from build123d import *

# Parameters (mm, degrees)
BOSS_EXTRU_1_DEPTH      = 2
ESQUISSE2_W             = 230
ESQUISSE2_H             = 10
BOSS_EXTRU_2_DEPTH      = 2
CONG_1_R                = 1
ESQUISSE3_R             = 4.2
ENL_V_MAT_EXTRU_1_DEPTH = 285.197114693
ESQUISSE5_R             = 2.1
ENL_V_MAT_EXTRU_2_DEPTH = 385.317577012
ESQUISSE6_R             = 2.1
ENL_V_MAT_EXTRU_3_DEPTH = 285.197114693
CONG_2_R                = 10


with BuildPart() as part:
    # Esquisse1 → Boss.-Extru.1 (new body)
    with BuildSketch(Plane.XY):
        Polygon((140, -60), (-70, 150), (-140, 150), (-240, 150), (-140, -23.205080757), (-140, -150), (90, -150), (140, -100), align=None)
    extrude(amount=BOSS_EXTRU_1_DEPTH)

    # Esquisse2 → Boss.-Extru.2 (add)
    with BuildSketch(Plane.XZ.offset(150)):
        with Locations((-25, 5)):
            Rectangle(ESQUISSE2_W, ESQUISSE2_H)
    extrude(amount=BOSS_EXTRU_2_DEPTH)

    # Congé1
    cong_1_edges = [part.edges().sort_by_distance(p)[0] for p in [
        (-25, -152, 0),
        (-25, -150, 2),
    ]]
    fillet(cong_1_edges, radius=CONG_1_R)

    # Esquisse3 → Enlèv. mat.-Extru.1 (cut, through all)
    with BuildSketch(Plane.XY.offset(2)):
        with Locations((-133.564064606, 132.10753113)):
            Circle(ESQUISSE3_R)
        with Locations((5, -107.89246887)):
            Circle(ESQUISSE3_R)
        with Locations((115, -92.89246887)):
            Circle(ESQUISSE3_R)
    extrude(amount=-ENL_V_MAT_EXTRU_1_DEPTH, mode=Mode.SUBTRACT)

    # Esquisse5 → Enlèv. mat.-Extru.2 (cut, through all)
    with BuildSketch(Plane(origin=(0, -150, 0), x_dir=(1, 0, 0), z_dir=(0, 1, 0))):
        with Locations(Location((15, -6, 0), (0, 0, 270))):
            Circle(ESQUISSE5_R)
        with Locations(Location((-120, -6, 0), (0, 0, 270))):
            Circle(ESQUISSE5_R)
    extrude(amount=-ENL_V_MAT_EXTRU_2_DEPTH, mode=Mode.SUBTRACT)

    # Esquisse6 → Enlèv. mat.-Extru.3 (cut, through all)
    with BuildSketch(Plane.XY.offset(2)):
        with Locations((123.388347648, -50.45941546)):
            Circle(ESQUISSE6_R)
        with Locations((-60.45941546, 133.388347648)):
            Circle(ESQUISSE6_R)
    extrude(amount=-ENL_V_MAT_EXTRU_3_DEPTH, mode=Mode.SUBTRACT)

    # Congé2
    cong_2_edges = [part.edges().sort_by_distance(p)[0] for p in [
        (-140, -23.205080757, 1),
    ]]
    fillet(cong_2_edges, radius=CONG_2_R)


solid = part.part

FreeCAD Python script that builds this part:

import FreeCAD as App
import Part
import Sketcher
Q = App.Units.Quantity


def edges_at(feature, points):
    """Names of the edges that pass closest to the given points."""
    edges = feature.Shape.Edges
    near = lambda p: min(range(len(edges)), key=lambda i: edges[i].distToShape(Part.Vertex(*p))[0])
    return sorted({f"Edge{near(p) + 1}" for p in points})

doc = App.newDocument("Part")
body = doc.addObject("PartDesign::Body", "Body")

sketch1 = body.newObject("Sketcher::SketchObject", "Sketch")
sketch1.AttachmentSupport = (doc.getObject("XY_Plane"), [""])
sketch1.MapMode = "FlatFace"
sketch1.addGeometry(Part.LineSegment(App.Vector(140, -60, 0), App.Vector(-70, 150, 0)), False)
sketch1.addGeometry(Part.LineSegment(App.Vector(-70, 150, 0), App.Vector(-240, 150, 0)), False)
sketch1.addGeometry(Part.LineSegment(App.Vector(-240, 150, 0), App.Vector(-140, -23, 0)), False)
sketch1.addGeometry(Part.LineSegment(App.Vector(-140, -23, 0), App.Vector(-140, -150, 0)), False)
sketch1.addGeometry(Part.LineSegment(App.Vector(-140, -150, 0), App.Vector(90, -150, 0)), False)
sketch1.addGeometry(Part.LineSegment(App.Vector(90, -150, 0), App.Vector(140, -100, 0)), False)
sketch1.addGeometry(Part.LineSegment(App.Vector(140, -100, 0), App.Vector(140, -60, 0)), False)
sketch1.addConstraint(Sketcher.Constraint("Coincident", 0, 2, 1, 1))
sketch1.addConstraint(Sketcher.Constraint("Coincident", 1, 2, 2, 1))
sketch1.addConstraint(Sketcher.Constraint("Coincident", 2, 2, 3, 1))
sketch1.addConstraint(Sketcher.Constraint("Coincident", 3, 2, 4, 1))
sketch1.addConstraint(Sketcher.Constraint("Coincident", 4, 2, 5, 1))
sketch1.addConstraint(Sketcher.Constraint("Coincident", 5, 2, 6, 1))
sketch1.addConstraint(Sketcher.Constraint("Coincident", 6, 2, 0, 1))
sketch1.addConstraint(Sketcher.Constraint("Horizontal", 1))
sketch1.addConstraint(Sketcher.Constraint("Vertical", 3))
sketch1.addConstraint(Sketcher.Constraint("Horizontal", 4))
sketch1.addConstraint(Sketcher.Constraint("Vertical", 6))
sketch1.addConstraint(Sketcher.Constraint("Perpendicular", 0, 5))
sketch1.addConstraint(Sketcher.Constraint("DistanceX", 1, 2, 1, 1, 170.0))
sketch1.addConstraint(Sketcher.Constraint("DistanceX", 4, 1, 4, 2, 230.0))
sketch1.addConstraint(Sketcher.Constraint("DistanceY", 6, 1, 6, 2, 40.0))
sketch1.addConstraint(Sketcher.Constraint("Angle", 0, Q("135 deg")))
sketch1.addConstraint(Sketcher.Constraint("Angle", 2, Q("-60 deg")))
sketch1.addConstraint(Sketcher.Constraint("Distance", 2, 200.0))
sketch1.addConstraint(Sketcher.Constraint("DistanceX", 0, 2, -1, 1, 70.0))
sketch1.addConstraint(Sketcher.Constraint("DistanceY", -1, 1, 0, 2, 150.0))
sketch1.addConstraint(Sketcher.Constraint("DistanceY", 3, 2, -1, 1, 150.0))
pad1 = body.newObject("PartDesign::Pad", "Pad")
pad1.Profile = sketch1
pad1.Length = 2

sketch2 = body.newObject("Sketcher::SketchObject", "Sketch001")
sketch2.AttachmentSupport = (doc.getObject("XZ_Plane"), [""])
sketch2.MapMode = "FlatFace"
sketch2.AttachmentOffset = App.Placement(App.Vector(0, 0, 150), App.Rotation())
sketch2.addGeometry(Part.LineSegment(App.Vector(-140, 10, 0), App.Vector(-140, 0, 0)), False)
sketch2.addGeometry(Part.LineSegment(App.Vector(-140, 0, 0), App.Vector(90, 0, 0)), False)
sketch2.addGeometry(Part.LineSegment(App.Vector(90, 0, 0), App.Vector(90, 10, 0)), False)
sketch2.addGeometry(Part.LineSegment(App.Vector(90, 10, 0), App.Vector(-140, 10, 0)), False)
sketch2.addConstraint(Sketcher.Constraint("Coincident", 0, 2, 1, 1))
sketch2.addConstraint(Sketcher.Constraint("Coincident", 1, 2, 2, 1))
sketch2.addConstraint(Sketcher.Constraint("Coincident", 2, 2, 3, 1))
sketch2.addConstraint(Sketcher.Constraint("Coincident", 3, 2, 0, 1))
sketch2.addConstraint(Sketcher.Constraint("Vertical", 0))
sketch2.addConstraint(Sketcher.Constraint("Horizontal", 1))
sketch2.addConstraint(Sketcher.Constraint("Vertical", 2))
sketch2.addConstraint(Sketcher.Constraint("Horizontal", 3))
sketch2.addConstraint(Sketcher.Constraint("PointOnObject", 0, 2, -1))
sketch2.addConstraint(Sketcher.Constraint("DistanceX", 1, 1, 1, 2, 230.0))
sketch2.addConstraint(Sketcher.Constraint("DistanceY", 0, 2, 0, 1, 10.0))
sketch2.addConstraint(Sketcher.Constraint("DistanceX", 0, 2, -1, 1, 140.0))
pad2 = body.newObject("PartDesign::Pad", "Pad001")
pad2.Profile = sketch2
pad2.Length = 2
doc.recompute()

fillet = body.newObject("PartDesign::Fillet", "Fillet")
fillet.Base = (pad2, edges_at(pad2, [(-25, -152, 0), (-25, -150, 2)]))
fillet.Radius = 1

sketch3 = body.newObject("Sketcher::SketchObject", "Sketch002")
sketch3.AttachmentSupport = (doc.getObject("XY_Plane"), [""])
sketch3.MapMode = "FlatFace"
sketch3.AttachmentOffset = App.Placement(App.Vector(0, 0, 2), App.Rotation())
sketch3.addGeometry(Part.Circle(App.Vector(-133.6, 132.1, 0), App.Vector(0, 0, 1), 4.2), False)
sketch3.addGeometry(Part.Circle(App.Vector(5, -107.9, 0), App.Vector(0, 0, 1), 4.2), False)
sketch3.addGeometry(Part.Circle(App.Vector(115, -92.9, 0), App.Vector(0, 0, 1), 4.2), False)
sketch3.addConstraint(Sketcher.Constraint("Equal", 0, 1))
sketch3.addConstraint(Sketcher.Constraint("Equal", 1, 2))
sketch3.addConstraint(Sketcher.Constraint("Diameter", 0, 8.4))
sketch3.addConstraint(Sketcher.Constraint("DistanceX", -1, 1, 1, 3, 5.0))
sketch3.addConstraint(Sketcher.Constraint("DistanceX", -1, 1, 2, 3, 115.0))
sketch3.addConstraint(Sketcher.Constraint("DistanceY", 1, 3, 0, 3, 240.0))
sketch3.addConstraint(Sketcher.Constraint("DistanceY", 1, 3, 2, 3, 15.0))
sketch3.addConstraint(Sketcher.Constraint("DistanceY", -1, 1, 0, 3, 132.107531))
sketch3.addConstraint(Sketcher.Constraint("DistanceX", 0, 3, -1, 1, 133.564065))
pocket1 = body.newObject("PartDesign::Pocket", "Pocket")
pocket1.Profile = sketch3
pocket1.Type = "ThroughAll"

sketch4 = body.newObject("Sketcher::SketchObject", "Sketch003")
sketch4.AttachmentSupport = (doc.getObject("XZ_Plane"), [""])
sketch4.MapMode = "FlatFace"
sketch4.AttachmentOffset = App.Placement(App.Vector(0, 0, 150), App.Rotation())
sketch4.addGeometry(Part.Circle(App.Vector(15, 6, 0), App.Vector(0, 0, 1), 2.1), False)
sketch4.addGeometry(Part.Circle(App.Vector(-120, 6, 0), App.Vector(0, 0, 1), 2.1), False)
sketch4.addConstraint(Sketcher.Constraint("Equal", 0, 1))
sketch4.addConstraint(Sketcher.Constraint("Horizontal", 0, 3, 1, 3))
sketch4.addConstraint(Sketcher.Constraint("Diameter", 0, 4.2))
sketch4.addConstraint(Sketcher.Constraint("DistanceX", -1, 1, 0, 3, 15.0))
sketch4.addConstraint(Sketcher.Constraint("DistanceY", -1, 1, 0, 3, 6.0))
sketch4.addConstraint(Sketcher.Constraint("DistanceX", 1, 3, -1, 1, 120.0))
pocket2 = body.newObject("PartDesign::Pocket", "Pocket001")
pocket2.Profile = sketch4
pocket2.Type = "ThroughAll"
pocket2.Reversed = True

sketch5 = body.newObject("Sketcher::SketchObject", "Sketch004")
sketch5.AttachmentSupport = (doc.getObject("XY_Plane"), [""])
sketch5.MapMode = "FlatFace"
sketch5.AttachmentOffset = App.Placement(App.Vector(0, 0, 2), App.Rotation())
sketch5.addGeometry(Part.Circle(App.Vector(123.4, -50.5, 0), App.Vector(0, 0, 1), 2.1), False)
sketch5.addGeometry(Part.Circle(App.Vector(-60.5, 133.4, 0), App.Vector(0, 0, 1), 2.1), False)
sketch5.addConstraint(Sketcher.Constraint("Equal", 0, 1))
sketch5.addConstraint(Sketcher.Constraint("Diameter", 0, 4.2))
sketch5.addConstraint(Sketcher.Constraint("DistanceX", -1, 1, 0, 3, 123.388348))
sketch5.addConstraint(Sketcher.Constraint("DistanceY", 0, 3, -1, 1, 50.459415))
sketch5.addConstraint(Sketcher.Constraint("DistanceX", 1, 3, -1, 1, 60.459415))
sketch5.addConstraint(Sketcher.Constraint("DistanceY", -1, 1, 1, 3, 133.388348))
pocket3 = body.newObject("PartDesign::Pocket", "Pocket002")
pocket3.Profile = sketch5
pocket3.Type = "ThroughAll"
doc.recompute()

fillet2 = body.newObject("PartDesign::Fillet", "Fillet001")
fillet2.Base = (pocket3, edges_at(pocket3, [(-140, -23.205, 1)]))
fillet2.Radius = 10

doc.recompute()
